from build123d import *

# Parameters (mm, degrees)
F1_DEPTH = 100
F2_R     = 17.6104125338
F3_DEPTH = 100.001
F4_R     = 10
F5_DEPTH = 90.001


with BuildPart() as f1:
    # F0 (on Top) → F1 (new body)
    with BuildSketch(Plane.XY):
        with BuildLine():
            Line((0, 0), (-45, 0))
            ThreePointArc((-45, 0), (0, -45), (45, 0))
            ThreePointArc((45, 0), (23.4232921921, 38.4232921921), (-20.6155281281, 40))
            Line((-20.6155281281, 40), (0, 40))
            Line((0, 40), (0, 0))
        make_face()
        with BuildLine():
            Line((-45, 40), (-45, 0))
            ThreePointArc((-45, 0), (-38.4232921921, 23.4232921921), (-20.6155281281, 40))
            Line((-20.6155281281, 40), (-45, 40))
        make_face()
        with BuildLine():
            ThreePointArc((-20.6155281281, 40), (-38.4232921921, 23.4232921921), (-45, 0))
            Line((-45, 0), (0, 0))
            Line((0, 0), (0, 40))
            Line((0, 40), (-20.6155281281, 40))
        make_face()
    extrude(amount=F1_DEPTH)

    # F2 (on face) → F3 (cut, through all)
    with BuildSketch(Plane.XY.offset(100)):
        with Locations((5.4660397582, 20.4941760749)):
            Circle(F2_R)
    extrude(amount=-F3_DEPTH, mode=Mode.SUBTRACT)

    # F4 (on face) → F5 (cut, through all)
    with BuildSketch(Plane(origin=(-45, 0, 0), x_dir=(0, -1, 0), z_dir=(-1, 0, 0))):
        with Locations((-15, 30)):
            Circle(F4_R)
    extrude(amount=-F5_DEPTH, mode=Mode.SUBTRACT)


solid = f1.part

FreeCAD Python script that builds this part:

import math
import FreeCAD as App
import Part
import Sketcher

V = App.Vector
Q = App.Units.Quantity

doc = App.newDocument("Part")
body = doc.addObject("PartDesign::Body", "Body")

sketch1 = body.newObject("Sketcher::SketchObject", "Sketch")
sketch1.AttachmentSupport = (doc.getObject("XY_Plane"), [""])
sketch1.MapMode = "FlatFace"
sketch1.addGeometry(Part.ArcOfCircle(Part.Circle(V(0, 0, 0), V(0, 0, 1), 45), math.radians(180), math.radians(360)), False)
sketch1.addGeometry(Part.ArcOfCircle(Part.Circle(V(0, 0, 0), V(0, 0, 1), 45), math.radians(0), math.radians(117)), False)
sketch1.addGeometry(Part.LineSegment(V(-21, 40, 0), V(-45, 40, 0)), False)
sketch1.addGeometry(Part.LineSegment(V(-45, 40, 0), V(-45, 0, 0)), False)
sketch1.addConstraint(Sketcher.Constraint("Tangent", 0, 2, 1, 1))
sketch1.addConstraint(Sketcher.Constraint("Coincident", 1, 2, 2, 1))
sketch1.addConstraint(Sketcher.Constraint("Coincident", 2, 2, 3, 1))
sketch1.addConstraint(Sketcher.Constraint("Tangent", 3, 2, 0, 1))
sketch1.addConstraint(Sketcher.Constraint("Horizontal", 2))
sketch1.addConstraint(Sketcher.Constraint("Vertical", 3))
sketch1.addConstraint(Sketcher.Constraint("Coincident", 0, 3, -1, 1))
sketch1.addConstraint(Sketcher.Constraint("Equal", 0, 1))
sketch1.addConstraint(Sketcher.Constraint("PointOnObject", 0, 2, -1))
sketch1.addConstraint(Sketcher.Constraint("Radius", 0, Q("45 mm")))
sketch1.addConstraint(Sketcher.Constraint("DistanceY", 3, 2, 3, 1, Q("40 mm")))
pad1 = body.newObject("PartDesign::Pad", "Pad")
pad1.Profile = sketch1
pad1.Length = 100

sketch2 = body.newObject("Sketcher::SketchObject", "Sketch001")
sketch2.AttachmentSupport = (doc.getObject("XY_Plane"), [""])
sketch2.MapMode = "FlatFace"
sketch2.AttachmentOffset = App.Placement(V(0, 0, 100), App.Rotation())
sketch2.addGeometry(Part.Circle(V(5, 20, 0), V(0, 0, 1), 18), False)
sketch2.addConstraint(Sketcher.Constraint("Diameter", 0, Q("35.220825 mm")))
sketch2.addConstraint(Sketcher.Constraint("DistanceX", -1, 1, 0, 3, Q("5.46604 mm")))
sketch2.addConstraint(Sketcher.Constraint("DistanceY", -1, 1, 0, 3, Q("20.494176 mm")))
pocket1 = body.newObject("PartDesign::Pocket", "Pocket")
pocket1.Profile = sketch2
pocket1.Type = "ThroughAll"

sketch3 = body.newObject("Sketcher::SketchObject", "Sketch002")
sketch3.AttachmentSupport = (doc.getObject("YZ_Plane"), [""])
sketch3.MapMode = "FlatFace"
sketch3.AttachmentOffset = App.Placement(V(0, 0, -45), App.Rotation())
sketch3.addGeometry(Part.Circle(V(15, 30, 0), V(0, 0, 1), 10), False)
sketch3.addConstraint(Sketcher.Constraint("Diameter", 0, Q("20 mm")))
sketch3.addConstraint(Sketcher.Constraint("DistanceX", -1, 1, 0, 3, Q("15 mm")))
sketch3.addConstraint(Sketcher.Constraint("DistanceY", -1, 1, 0, 3, Q("30 mm")))
pocket2 = body.newObject("PartDesign::Pocket", "Pocket001")
pocket2.Profile = sketch3
pocket2.Type = "ThroughAll"
pocket2.Reversed = True

doc.recompute()
